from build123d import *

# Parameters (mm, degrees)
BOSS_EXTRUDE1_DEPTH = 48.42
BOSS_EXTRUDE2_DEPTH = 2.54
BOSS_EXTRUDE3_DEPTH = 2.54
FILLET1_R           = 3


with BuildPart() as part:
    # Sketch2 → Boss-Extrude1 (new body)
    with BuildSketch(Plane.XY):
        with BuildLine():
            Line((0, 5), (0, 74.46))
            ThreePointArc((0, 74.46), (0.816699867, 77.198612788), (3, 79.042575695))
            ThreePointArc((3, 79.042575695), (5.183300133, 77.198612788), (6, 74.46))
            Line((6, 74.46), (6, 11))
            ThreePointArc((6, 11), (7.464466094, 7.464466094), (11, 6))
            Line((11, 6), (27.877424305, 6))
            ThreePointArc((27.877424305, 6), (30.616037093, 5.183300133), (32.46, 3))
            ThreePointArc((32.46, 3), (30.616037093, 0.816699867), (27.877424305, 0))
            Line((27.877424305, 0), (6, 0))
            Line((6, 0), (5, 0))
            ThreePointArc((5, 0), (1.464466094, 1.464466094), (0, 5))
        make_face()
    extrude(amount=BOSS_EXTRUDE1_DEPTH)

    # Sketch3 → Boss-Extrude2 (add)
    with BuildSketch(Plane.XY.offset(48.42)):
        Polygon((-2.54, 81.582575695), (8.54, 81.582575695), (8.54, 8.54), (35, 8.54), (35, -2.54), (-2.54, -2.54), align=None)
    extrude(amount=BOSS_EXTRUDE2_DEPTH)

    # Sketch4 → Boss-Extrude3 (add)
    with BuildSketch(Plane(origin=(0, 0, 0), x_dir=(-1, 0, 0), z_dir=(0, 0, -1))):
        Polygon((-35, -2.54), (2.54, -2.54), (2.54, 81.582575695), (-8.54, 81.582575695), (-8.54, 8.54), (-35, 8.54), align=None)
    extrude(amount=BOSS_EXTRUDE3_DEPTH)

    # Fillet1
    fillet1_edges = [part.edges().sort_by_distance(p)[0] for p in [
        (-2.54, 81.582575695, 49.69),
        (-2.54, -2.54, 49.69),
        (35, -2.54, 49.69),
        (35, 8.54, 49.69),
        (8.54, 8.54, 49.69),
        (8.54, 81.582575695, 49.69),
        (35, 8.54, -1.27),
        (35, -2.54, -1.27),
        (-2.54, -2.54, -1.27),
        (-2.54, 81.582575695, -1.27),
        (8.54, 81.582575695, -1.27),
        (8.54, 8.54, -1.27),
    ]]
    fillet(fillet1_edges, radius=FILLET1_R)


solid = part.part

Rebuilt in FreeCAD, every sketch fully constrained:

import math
import FreeCAD as App
import Part
import Sketcher


def edges_at(feature, points):
    """Names of the edges that pass closest to the given points."""
    edges = feature.Shape.Edges
    near = lambda p: min(range(len(edges)), key=lambda i: edges[i].distToShape(Part.Vertex(*p))[0])
    return sorted({f"Edge{near(p) + 1}" for p in points})


def add_polygon(sketch, points):
    """Adds a closed chain of lines whose ends are joined by coincident constraints."""
    first, n = sketch.GeometryCount, len(points)
    for a, b in zip(points, points[1:] + points[:1]):
        sketch.addGeometry(Part.LineSegment(App.Vector(*a, 0), App.Vector(*b, 0)), False)
    for i in range(n):
        sketch.addConstraint(Sketcher.Constraint("Coincident", first + i, 2, first + (i + 1) % n, 1))

doc = App.newDocument("Part")
body = doc.addObject("PartDesign::Body", "Body")

sketch1 = body.newObject("Sketcher::SketchObject", "Sketch")
sketch1.AttachmentSupport = (doc.getObject("XY_Plane"), [""])
sketch1.MapMode = "FlatFace"
sketch1.addGeometry([
    Part.LineSegment(App.Vector(0, 74.5, 0), App.Vector(0, 5, 0)),
    Part.ArcOfCircle(Part.Circle(App.Vector(5, 5, 0), App.Vector(0, 0, 1), 5), math.radians(180), math.radians(270)),
    Part.LineSegment(App.Vector(5, 0, 0), App.Vector(27.9, 0, 0)),
    Part.ArcOfCircle(Part.Circle(App.Vector(27.9, 5, 0), App.Vector(0, 0, 1), 5), math.radians(-90), math.radians(-24)),
    Part.ArcOfCircle(Part.Circle(App.Vector(27.9, 1, 0), App.Vector(0, 0, 1), 5), math.radians(24), math.radians(90)),
    Part.LineSegment(App.Vector(27.9, 6, 0), App.Vector(11, 6, 0)),
    Part.ArcOfCircle(Part.Circle(App.Vector(11, 11, 0), App.Vector(0, 0, 1), 5), math.radians(180), math.radians(270)),
    Part.LineSegment(App.Vector(6, 11, 0), App.Vector(6, 74.5, 0)),
    Part.ArcOfCircle(Part.Circle(App.Vector(1, 74.5, 0), App.Vector(0, 0, 1), 5), math.radians(0), math.radians(66)),
    Part.ArcOfCircle(Part.Circle(App.Vector(5, 74.5, 0), App.Vector(0, 0, 1), 5), math.radians(114), math.radians(180)),
], False)
sketch1.addConstraint([
    Sketcher.Constraint("Tangent", 0, 2, 1, 1),
    Sketcher.Constraint("Tangent", 1, 2, 2, 1),
    Sketcher.Constraint("Tangent", 2, 2, 3, 1),
    Sketcher.Constraint("Coincident", 3, 2, 4, 1),
    Sketcher.Constraint("Tangent", 4, 2, 5, 1),
    Sketcher.Constraint("Tangent", 5, 2, 6, 2),
    Sketcher.Constraint("Tangent", 6, 1, 7, 1),
    Sketcher.Constraint("Tangent", 7, 2, 8, 1),
    Sketcher.Constraint("Coincident", 8, 2, 9, 1),
    Sketcher.Constraint("Tangent", 9, 2, 0, 1),
    Sketcher.Constraint("Vertical", 0),
    Sketcher.Constraint("Horizontal", 2),
    Sketcher.Constraint("Horizontal", 5),
    Sketcher.Constraint("Vertical", 7),
    Sketcher.Constraint("Equal", 1, 3),
    Sketcher.Constraint("Equal", 3, 4),
    Sketcher.Constraint("Equal", 4, 6),
    Sketcher.Constraint("Equal", 6, 8),
    Sketcher.Constraint("Equal", 8, 9),
    Sketcher.Constraint("PointOnObject", 0, 2, -2),
    Sketcher.Constraint("PointOnObject", 1, 2, -1),
    Sketcher.Constraint("Horizontal", 8, 3, 9, 3),
    Sketcher.Constraint("Vertical", 3, 3, 4, 3),
    Sketcher.Constraint("Radius", 1, 5.0),
    Sketcher.Constraint("DistanceY", -1, 1, 4, 3, 1.0),
    Sketcher.Constraint("DistanceX", -1, 1, 6, 3, 11.0),
    Sketcher.Constraint("DistanceY", 0, 2, 0, 1, 69.46),
    Sketcher.Constraint("DistanceX", -1, 1, 3, 2, 32.46),
])
pad1 = body.newObject("PartDesign::Pad", "Pad")
pad1.Profile = sketch1
pad1.Length = 48.42

sketch2 = body.newObject("Sketcher::SketchObject", "Sketch001")
sketch2.AttachmentSupport = (doc.getObject("XY_Plane"), [""])
sketch2.MapMode = "FlatFace"
sketch2.AttachmentOffset = App.Placement(App.Vector(0, 0, 48.42), App.Rotation())
add_polygon(sketch2, [(9, 82), (-3, 82), (-3, -3), (35, -3), (35, 9), (9, 9)])
sketch2.addConstraint([
    Sketcher.Constraint("Horizontal", 0),
    Sketcher.Constraint("Vertical", 1),
    Sketcher.Constraint("Horizontal", 2),
    Sketcher.Constraint("Vertical", 3),
    Sketcher.Constraint("Horizontal", 4),
    Sketcher.Constraint("Vertical", 5),
    Sketcher.Constraint("Equal", 0, 3),
    Sketcher.Constraint("DistanceX", -1, 1, 2, 2, 35.0),
    Sketcher.Constraint("DistanceX", 0, 2, 0, 1, 11.08),
    Sketcher.Constraint("DistanceX", 2, 1, 2, 2, 37.54),
    Sketcher.Constraint("DistanceY", 1, 2, -1, 1, 2.54),
    Sketcher.Constraint("DistanceY", 1, 2, 1, 1, 84.122576),
])
pad2 = body.newObject("PartDesign::Pad", "Pad001")
pad2.Profile = sketch2
pad2.Length = 2.54

sketch3 = body.newObject("Sketcher::SketchObject", "Sketch002")
sketch3.AttachmentSupport = (doc.getObject("XY_Plane"), [""])
sketch3.MapMode = "FlatFace"
add_polygon(sketch3, [(35, -3), (-3, -3), (-3, 82), (9, 82), (9, 9), (35, 9)])
sketch3.addConstraint([
    Sketcher.Constraint("Horizontal", 0),
    Sketcher.Constraint("Vertical", 1),
    Sketcher.Constraint("Horizontal", 2),
    Sketcher.Constraint("Vertical", 3),
    Sketcher.Constraint("Horizontal", 4),
    Sketcher.Constraint("Vertical", 5),
    Sketcher.Constraint("Equal", 2, 5),
    Sketcher.Constraint("DistanceX", -1, 1, 4, 2, 35.0),
    Sketcher.Constraint("DistanceX", 0, 2, 0, 1, 37.54),
    Sketcher.Constraint("DistanceX", 2, 1, 2, 2, 11.08),
    Sketcher.Constraint("DistanceY", 0, 2, -1, 1, 2.54),
    Sketcher.Constraint("DistanceY", 1, 1, 1, 2, 84.122576),
])
pad3 = body.newObject("PartDesign::Pad", "Pad002")
pad3.Profile = sketch3
pad3.Length = 2.54
pad3.Reversed = True
doc.recompute()

fillet = body.newObject("PartDesign::Fillet", "Fillet")
fillet.Base = (pad3, edges_at(pad3, [
    (-2.54, 81.583, 49.69),
    (-2.54, -2.54, 49.69),
    (35, -2.54, 49.69),
    (35, 8.54, 49.69),
    (8.54, 8.54, 49.69),
    (8.54, 81.583, 49.69),
    (35, 8.54, -1.27),
    (35, -2.54, -1.27),
    (-2.54, -2.54, -1.27),
    (-2.54, 81.583, -1.27),
    (8.54, 81.583, -1.27),
    (8.54, 8.54, -1.27),
]))
fillet.Radius = 3

doc.recompute()
